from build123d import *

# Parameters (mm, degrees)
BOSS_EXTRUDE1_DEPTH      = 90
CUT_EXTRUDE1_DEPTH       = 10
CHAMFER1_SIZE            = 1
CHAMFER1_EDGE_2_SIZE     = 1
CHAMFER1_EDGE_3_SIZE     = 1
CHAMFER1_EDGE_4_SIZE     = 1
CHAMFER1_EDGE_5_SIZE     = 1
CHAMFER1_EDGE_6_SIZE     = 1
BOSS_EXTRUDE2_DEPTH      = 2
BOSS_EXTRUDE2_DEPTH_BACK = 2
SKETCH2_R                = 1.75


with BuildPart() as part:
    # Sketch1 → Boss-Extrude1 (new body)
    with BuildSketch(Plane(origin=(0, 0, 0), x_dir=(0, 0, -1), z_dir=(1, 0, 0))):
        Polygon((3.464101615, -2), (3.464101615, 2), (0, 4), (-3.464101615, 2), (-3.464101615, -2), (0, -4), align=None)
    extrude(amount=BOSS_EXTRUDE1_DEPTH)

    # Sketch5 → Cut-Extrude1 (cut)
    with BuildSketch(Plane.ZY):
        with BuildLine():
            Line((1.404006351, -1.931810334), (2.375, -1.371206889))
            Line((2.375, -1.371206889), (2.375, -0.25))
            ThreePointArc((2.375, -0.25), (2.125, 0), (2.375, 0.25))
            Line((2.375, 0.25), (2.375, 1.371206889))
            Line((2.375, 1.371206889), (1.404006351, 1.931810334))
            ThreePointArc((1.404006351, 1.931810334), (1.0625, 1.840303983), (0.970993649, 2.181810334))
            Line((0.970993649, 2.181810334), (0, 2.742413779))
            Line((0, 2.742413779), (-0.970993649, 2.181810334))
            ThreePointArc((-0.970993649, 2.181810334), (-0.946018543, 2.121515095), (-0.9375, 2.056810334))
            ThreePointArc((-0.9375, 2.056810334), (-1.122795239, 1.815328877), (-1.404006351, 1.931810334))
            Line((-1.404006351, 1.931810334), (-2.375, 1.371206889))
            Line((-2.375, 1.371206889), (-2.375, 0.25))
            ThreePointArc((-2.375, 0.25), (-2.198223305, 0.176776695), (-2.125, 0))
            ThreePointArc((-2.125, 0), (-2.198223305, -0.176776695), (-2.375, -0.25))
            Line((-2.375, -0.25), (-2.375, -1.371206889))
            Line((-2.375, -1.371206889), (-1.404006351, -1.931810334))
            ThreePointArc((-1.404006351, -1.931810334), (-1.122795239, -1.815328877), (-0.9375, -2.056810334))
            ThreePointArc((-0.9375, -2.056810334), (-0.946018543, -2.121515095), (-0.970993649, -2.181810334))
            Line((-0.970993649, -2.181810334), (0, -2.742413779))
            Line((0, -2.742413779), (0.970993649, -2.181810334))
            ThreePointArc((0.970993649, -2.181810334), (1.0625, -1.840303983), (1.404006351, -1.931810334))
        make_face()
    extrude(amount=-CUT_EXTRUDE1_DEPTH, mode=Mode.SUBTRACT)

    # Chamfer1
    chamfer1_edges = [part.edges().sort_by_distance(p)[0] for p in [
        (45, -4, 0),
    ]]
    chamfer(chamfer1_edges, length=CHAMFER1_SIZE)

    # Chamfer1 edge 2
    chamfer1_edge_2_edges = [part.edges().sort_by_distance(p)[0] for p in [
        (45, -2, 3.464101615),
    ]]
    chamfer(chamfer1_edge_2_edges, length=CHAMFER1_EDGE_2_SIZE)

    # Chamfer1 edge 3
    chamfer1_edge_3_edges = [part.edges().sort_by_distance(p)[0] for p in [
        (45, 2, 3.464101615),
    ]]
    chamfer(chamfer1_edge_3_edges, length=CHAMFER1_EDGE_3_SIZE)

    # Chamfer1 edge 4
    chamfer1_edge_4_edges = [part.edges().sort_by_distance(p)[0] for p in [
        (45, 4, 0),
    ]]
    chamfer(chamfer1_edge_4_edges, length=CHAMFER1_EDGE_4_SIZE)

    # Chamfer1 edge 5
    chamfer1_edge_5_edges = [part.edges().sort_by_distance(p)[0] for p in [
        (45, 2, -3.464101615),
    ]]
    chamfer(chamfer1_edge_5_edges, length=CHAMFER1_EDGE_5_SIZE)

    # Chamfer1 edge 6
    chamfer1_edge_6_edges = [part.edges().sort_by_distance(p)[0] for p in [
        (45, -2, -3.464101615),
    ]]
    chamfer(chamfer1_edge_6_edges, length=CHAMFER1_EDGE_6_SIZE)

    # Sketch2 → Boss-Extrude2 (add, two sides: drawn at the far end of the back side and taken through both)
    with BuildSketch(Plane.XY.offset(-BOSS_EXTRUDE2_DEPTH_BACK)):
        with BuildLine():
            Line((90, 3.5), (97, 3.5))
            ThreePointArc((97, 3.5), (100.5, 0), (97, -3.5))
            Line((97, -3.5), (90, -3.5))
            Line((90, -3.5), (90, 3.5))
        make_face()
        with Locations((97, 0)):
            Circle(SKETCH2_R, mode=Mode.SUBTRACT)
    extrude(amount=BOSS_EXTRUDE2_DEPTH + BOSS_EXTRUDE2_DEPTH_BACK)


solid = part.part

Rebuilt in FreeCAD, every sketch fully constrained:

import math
import FreeCAD as App
import Part
import Sketcher
Q = App.Units.Quantity


def edges_at(feature, points):
    """Names of the edges that pass closest to the given points."""
    edges = feature.Shape.Edges
    near = lambda p: min(range(len(edges)), key=lambda i: edges[i].distToShape(Part.Vertex(*p))[0])
    return sorted({f"Edge{near(p) + 1}" for p in points})


def add_polygon(sketch, points):
    """Adds a closed chain of lines whose ends are joined by coincident constraints."""
    first, n = sketch.GeometryCount, len(points)
    for a, b in zip(points, points[1:] + points[:1]):
        sketch.addGeometry(Part.LineSegment(App.Vector(*a, 0), App.Vector(*b, 0)), False)
    for i in range(n):
        sketch.addConstraint(Sketcher.Constraint("Coincident", first + i, 2, first + (i + 1) % n, 1))

doc = App.newDocument("Part")
body = doc.addObject("PartDesign::Body", "Body")

# Sketch on YZ plane
sketch1 = doc.addObject("Sketcher::SketchObject", "Sketch")
body.addObject(sketch1)
sketch1.AttachmentSupport = (doc.YZ_Plane, [""])
sketch1.MapMode = "FlatFace"
add_polygon(sketch1, [(-2, -3.5), (2, -3.5), (4, 0), (2, 3.5), (-2, 3.5), (-4, 0)])  # lines 0-5
sketch1.addConstraint([
    Sketcher.Constraint("Horizontal", 0),
    Sketcher.Constraint("Horizontal", 3),
    Sketcher.Constraint("Symmetric", 0, 2, 3, 2, -1, 1),
    Sketcher.Constraint("Symmetric", 1, 2, 4, 2, -1, 1),
    Sketcher.Constraint("PointOnObject", 1, 2, -1),
    Sketcher.Constraint("Parallel", 2, 5),
    Sketcher.Constraint("Vertical", 0, 2, 2, 2),
    Sketcher.Constraint("DistanceX", 0, 1, 0, 2, Q("4 mm")),
    Sketcher.Constraint("Angle", 1, Q("60 deg")),
    Sketcher.Constraint("Distance", 1, Q("4 mm")),
])
pad1 = doc.addObject("PartDesign::Pad", "Pad")
body.addObject(pad1)
pad1.Profile = sketch1
pad1.Length = 90

# Sketch on YZ plane
sketch2 = doc.addObject("Sketcher::SketchObject", "Sketch001")
body.addObject(sketch2)
sketch2.AttachmentSupport = (doc.YZ_Plane, [""])
sketch2.MapMode = "FlatFace"
sketch2.addGeometry([
    Part.LineSegment(App.Vector(-1.93, 1.4, 0), App.Vector(-1.37, 2.38, 0)),  # 0
    Part.LineSegment(App.Vector(-1.37, 2.38, 0), App.Vector(-0.25, 2.38, 0)),  # 1
    Part.ArcOfCircle(Part.Circle(App.Vector(0, 2.38, 0), App.Vector(0, 0, 1), 0.25), math.radians(180), math.radians(360)),  # 2
    Part.LineSegment(App.Vector(0.25, 2.38, 0), App.Vector(1.37, 2.38, 0)),  # 3
    Part.LineSegment(App.Vector(1.37, 2.38, 0), App.Vector(1.93, 1.4, 0)),  # 4
    Part.ArcOfCircle(Part.Circle(App.Vector(2.06, 1.19, 0), App.Vector(0, 0, 1), 0.25), math.radians(120), math.radians(300)),  # 5
    Part.LineSegment(App.Vector(2.18, 0.97, 0), App.Vector(2.74, 0, 0)),  # 6
    Part.LineSegment(App.Vector(2.74, 0, 0), App.Vector(2.18, -0.97, 0)),  # 7
    Part.ArcOfCircle(Part.Circle(App.Vector(2.06, -1.19, 0), App.Vector(0, 0, 1), 0.25), math.radians(60), math.radians(90)),  # 8
    Part.ArcOfCircle(Part.Circle(App.Vector(2.06, -1.19, 0), App.Vector(0, 0, 1), 0.25), math.radians(90), math.radians(240)),  # 9
    Part.LineSegment(App.Vector(1.93, -1.4, 0), App.Vector(1.37, -2.38, 0)),  # 10
    Part.LineSegment(App.Vector(1.37, -2.38, 0), App.Vector(0.25, -2.38, 0)),  # 11
    Part.ArcOfCircle(Part.Circle(App.Vector(0, -2.38, 0), App.Vector(0, 0, 1), 0.25), math.radians(0), math.radians(90)),  # 12
    Part.ArcOfCircle(Part.Circle(App.Vector(0, -2.38, 0), App.Vector(0, 0, 1), 0.25), math.radians(90), math.radians(180)),  # 13
    Part.LineSegment(App.Vector(-0.25, -2.38, 0), App.Vector(-1.37, -2.38, 0)),  # 14
    Part.LineSegment(App.Vector(-1.37, -2.38, 0), App.Vector(-1.93, -1.4, 0)),  # 15
    Part.ArcOfCircle(Part.Circle(App.Vector(-2.06, -1.19, 0), App.Vector(0, 0, 1), 0.25), math.radians(-60), math.radians(90)),  # 16
    Part.ArcOfCircle(Part.Circle(App.Vector(-2.06, -1.19, 0), App.Vector(0, 0, 1), 0.25), math.radians(90), math.radians(120)),  # 17
    Part.LineSegment(App.Vector(-2.18, -0.97, 0), App.Vector(-2.74, 0, 0)),  # 18
    Part.LineSegment(App.Vector(-2.74, 0, 0), App.Vector(-2.18, 0.97, 0)),  # 19
    Part.ArcOfCircle(Part.Circle(App.Vector(-2.06, 1.19, 0), App.Vector(0, 0, 1), 0.25), math.radians(-120), math.radians(60)),  # 20
], False)
sketch2.addConstraint([
    Sketcher.Constraint("Coincident", 0, 2, 1, 1),
    Sketcher.Constraint("Coincident", 1, 2, 2, 1),
    Sketcher.Constraint("Coincident", 2, 2, 3, 1),
    Sketcher.Constraint("Coincident", 3, 2, 4, 1),
    Sketcher.Constraint("Coincident", 4, 2, 5, 1),
    Sketcher.Constraint("Coincident", 5, 2, 6, 1),
    Sketcher.Constraint("Coincident", 6, 2, 7, 1),
    Sketcher.Constraint("Coincident", 7, 2, 8, 1),
    Sketcher.Constraint("Tangent", 8, 2, 9, 1),
    Sketcher.Constraint("Coincident", 9, 2, 10, 1),
    Sketcher.Constraint("Coincident", 10, 2, 11, 1),
    Sketcher.Constraint("Coincident", 11, 2, 12, 1),
    Sketcher.Constraint("Tangent", 12, 2, 13, 1),
    Sketcher.Constraint("Coincident", 13, 2, 14, 1),
    Sketcher.Constraint("Coincident", 14, 2, 15, 1),
    Sketcher.Constraint("Coincident", 15, 2, 16, 1),
    Sketcher.Constraint("Tangent", 16, 2, 17, 1),
    Sketcher.Constraint("Coincident", 17, 2, 18, 1),
    Sketcher.Constraint("Coincident", 18, 2, 19, 1),
    Sketcher.Constraint("Coincident", 19, 2, 20, 1),
    Sketcher.Constraint("Coincident", 20, 2, 0, 1),
    Sketcher.Constraint("Horizontal", 1),
    Sketcher.Constraint("Horizontal", 3),
    Sketcher.Constraint("Horizontal", 11),
    Sketcher.Constraint("Horizontal", 14),
    Sketcher.Constraint("Equal", 2, 5),
    Sketcher.Constraint("Equal", 5, 8),
    Sketcher.Constraint("Equal", 8, 9),
    Sketcher.Constraint("Equal", 9, 12),
    Sketcher.Constraint("Equal", 12, 13),
    Sketcher.Constraint("Equal", 13, 16),
    Sketcher.Constraint("Equal", 16, 17),
    Sketcher.Constraint("Equal", 17, 20),
    Sketcher.Constraint("Symmetric", 2, 3, 12, 3, -1, 1),
    Sketcher.Constraint("Symmetric", 5, 3, 16, 3, -1, 1),
    Sketcher.Constraint("Symmetric", 8, 3, 20, 3, -1, 1),
    Sketcher.Constraint("Symmetric", 0, 2, 10, 2, -1, 1),
    Sketcher.Constraint("Symmetric", 3, 2, 14, 2, -1, 1),
    Sketcher.Constraint("Symmetric", 6, 2, 18, 2, -1, 1),
    Sketcher.Constraint("Symmetric", 8, 3, 16, 3, -2),
    Sketcher.Constraint("Symmetric", 1, 2, 2, 2, -2),
    Sketcher.Constraint("PointOnObject", 6, 2, -1),
    Sketcher.Constraint("PointOnObject", 12, 2, -2),
    Sketcher.Constraint("Parallel", 4, 6),
    Sketcher.Constraint("Parallel", 0, 7),
    Sketcher.Constraint("Parallel", 7, 10),
    Sketcher.Constraint("Parallel", 6, 15),
    Sketcher.Constraint("Parallel", 15, 18),
    Sketcher.Constraint("Parallel", 10, 19),
    Sketcher.Constraint("Horizontal", 2, 3, 0, 2),
    Sketcher.Constraint("Horizontal", 9, 2, 15, 2),
    Sketcher.Constraint("Horizontal", 7, 2, 17, 2),
    Sketcher.Constraint("Vertical", 9, 3, 8, 2),
    Sketcher.Constraint("Vertical", 20, 3, 16, 2),
    Sketcher.Constraint("Equal", 4, 6),
    Sketcher.Constraint("Angle", 0, Q("60 deg")),
    Sketcher.Constraint("Radius", 2, Q("0.25 mm")),
    Sketcher.Constraint("DistanceY", 12, 3, 2, 3, Q("4.75 mm")),
    Sketcher.Constraint("DistanceX", 4, 2, 5, 2, Q("0.25 mm")),
    Sketcher.Constraint("DistanceY", 8, 3, 5, 3, Q("2.375 mm")),
    Sketcher.Constraint("DistanceX", 1, 1, 1, 2, Q("1.121207 mm")),
])
pocket1 = doc.addObject("PartDesign::Pocket", "Pocket")
body.addObject(pocket1)
pocket1.Profile = sketch2
pocket1.Length = 10
pocket1.Reversed = True
doc.recompute()

chamfer = doc.addObject("PartDesign::Chamfer", "Chamfer")
body.addObject(chamfer)
chamfer.Base = (pocket1, edges_at(pocket1, [(45, -4, 0)]))
chamfer.Size = 1
doc.recompute()

chamfer2 = doc.addObject("PartDesign::Chamfer", "Chamfer001")
body.addObject(chamfer2)
chamfer2.Base = (chamfer, edges_at(chamfer, [(45, -2, 3.464)]))
chamfer2.Size = 1
doc.recompute()

chamfer3 = doc.addObject("PartDesign::Chamfer", "Chamfer002")
body.addObject(chamfer3)
chamfer3.Base = (chamfer2, edges_at(chamfer2, [(45, 2, 3.464)]))
chamfer3.Size = 1
doc.recompute()

chamfer4 = doc.addObject("PartDesign::Chamfer", "Chamfer003")
body.addObject(chamfer4)
chamfer4.Base = (chamfer3, edges_at(chamfer3, [(45, 4, 0)]))
chamfer4.Size = 1
doc.recompute()

chamfer5 = doc.addObject("PartDesign::Chamfer", "Chamfer004")
body.addObject(chamfer5)
chamfer5.Base = (chamfer4, edges_at(chamfer4, [(45, 2, -3.464)]))
chamfer5.Size = 1
doc.recompute()

chamfer6 = doc.addObject("PartDesign::Chamfer", "Chamfer005")
body.addObject(chamfer6)
chamfer6.Base = (chamfer5, edges_at(chamfer5, [(45, -2, -3.464)]))
chamfer6.Size = 1

# Sketch on XY plane
sketch3 = doc.addObject("Sketcher::SketchObject", "Sketch002")
body.addObject(sketch3)
sketch3.AttachmentSupport = (doc.XY_Plane, [""])
sketch3.MapMode = "FlatFace"
sketch3.addGeometry([
    Part.LineSegment(App.Vector(97, 3.5, 0), App.Vector(90, 3.5, 0)),  # 0
    Part.LineSegment(App.Vector(90, 3.5, 0), App.Vector(90, -3.5, 0)),  # 1
    Part.LineSegment(App.Vector(90, -3.5, 0), App.Vector(97, -3.5, 0)),  # 2
    Part.ArcOfCircle(Part.Circle(App.Vector(97, 0, 0), App.Vector(0, 0, 1), 3.5), math.radians(-90), math.radians(90)),  # 3
    Part.Circle(App.Vector(97, 0, 0), App.Vector(0, 0, 1), 1.8),  # 4
], False)
sketch3.addConstraint([
    Sketcher.Constraint("Coincident", 0, 2, 1, 1),
    Sketcher.Constraint("Coincident", 1, 2, 2, 1),
    Sketcher.Constraint("Tangent", 2, 2, 3, 1),
    Sketcher.Constraint("Tangent", 3, 2, 0, 1),
    Sketcher.Constraint("Horizontal", 0),
    Sketcher.Constraint("Vertical", 1),
    Sketcher.Constraint("Horizontal", 2),
    Sketcher.Constraint("Coincident", 4, 3, 3, 3),
    Sketcher.Constraint("PointOnObject", 3, 3, -1),
    Sketcher.Constraint("Equal", 2, 1),
    Sketcher.Constraint("Diameter", 4, Q("3.5 mm")),
    Sketcher.Constraint("Radius", 3, Q("3.5 mm")),
    Sketcher.Constraint("DistanceX", -1, 1, 3, 3, Q("97 mm")),
])
pad2 = doc.addObject("PartDesign::Pad", "Pad001")
body.addObject(pad2)
pad2.Profile = sketch3
pad2.Type = "TwoLengths"
pad2.Length = 2
pad2.Length2 = 2

doc.recompute()
